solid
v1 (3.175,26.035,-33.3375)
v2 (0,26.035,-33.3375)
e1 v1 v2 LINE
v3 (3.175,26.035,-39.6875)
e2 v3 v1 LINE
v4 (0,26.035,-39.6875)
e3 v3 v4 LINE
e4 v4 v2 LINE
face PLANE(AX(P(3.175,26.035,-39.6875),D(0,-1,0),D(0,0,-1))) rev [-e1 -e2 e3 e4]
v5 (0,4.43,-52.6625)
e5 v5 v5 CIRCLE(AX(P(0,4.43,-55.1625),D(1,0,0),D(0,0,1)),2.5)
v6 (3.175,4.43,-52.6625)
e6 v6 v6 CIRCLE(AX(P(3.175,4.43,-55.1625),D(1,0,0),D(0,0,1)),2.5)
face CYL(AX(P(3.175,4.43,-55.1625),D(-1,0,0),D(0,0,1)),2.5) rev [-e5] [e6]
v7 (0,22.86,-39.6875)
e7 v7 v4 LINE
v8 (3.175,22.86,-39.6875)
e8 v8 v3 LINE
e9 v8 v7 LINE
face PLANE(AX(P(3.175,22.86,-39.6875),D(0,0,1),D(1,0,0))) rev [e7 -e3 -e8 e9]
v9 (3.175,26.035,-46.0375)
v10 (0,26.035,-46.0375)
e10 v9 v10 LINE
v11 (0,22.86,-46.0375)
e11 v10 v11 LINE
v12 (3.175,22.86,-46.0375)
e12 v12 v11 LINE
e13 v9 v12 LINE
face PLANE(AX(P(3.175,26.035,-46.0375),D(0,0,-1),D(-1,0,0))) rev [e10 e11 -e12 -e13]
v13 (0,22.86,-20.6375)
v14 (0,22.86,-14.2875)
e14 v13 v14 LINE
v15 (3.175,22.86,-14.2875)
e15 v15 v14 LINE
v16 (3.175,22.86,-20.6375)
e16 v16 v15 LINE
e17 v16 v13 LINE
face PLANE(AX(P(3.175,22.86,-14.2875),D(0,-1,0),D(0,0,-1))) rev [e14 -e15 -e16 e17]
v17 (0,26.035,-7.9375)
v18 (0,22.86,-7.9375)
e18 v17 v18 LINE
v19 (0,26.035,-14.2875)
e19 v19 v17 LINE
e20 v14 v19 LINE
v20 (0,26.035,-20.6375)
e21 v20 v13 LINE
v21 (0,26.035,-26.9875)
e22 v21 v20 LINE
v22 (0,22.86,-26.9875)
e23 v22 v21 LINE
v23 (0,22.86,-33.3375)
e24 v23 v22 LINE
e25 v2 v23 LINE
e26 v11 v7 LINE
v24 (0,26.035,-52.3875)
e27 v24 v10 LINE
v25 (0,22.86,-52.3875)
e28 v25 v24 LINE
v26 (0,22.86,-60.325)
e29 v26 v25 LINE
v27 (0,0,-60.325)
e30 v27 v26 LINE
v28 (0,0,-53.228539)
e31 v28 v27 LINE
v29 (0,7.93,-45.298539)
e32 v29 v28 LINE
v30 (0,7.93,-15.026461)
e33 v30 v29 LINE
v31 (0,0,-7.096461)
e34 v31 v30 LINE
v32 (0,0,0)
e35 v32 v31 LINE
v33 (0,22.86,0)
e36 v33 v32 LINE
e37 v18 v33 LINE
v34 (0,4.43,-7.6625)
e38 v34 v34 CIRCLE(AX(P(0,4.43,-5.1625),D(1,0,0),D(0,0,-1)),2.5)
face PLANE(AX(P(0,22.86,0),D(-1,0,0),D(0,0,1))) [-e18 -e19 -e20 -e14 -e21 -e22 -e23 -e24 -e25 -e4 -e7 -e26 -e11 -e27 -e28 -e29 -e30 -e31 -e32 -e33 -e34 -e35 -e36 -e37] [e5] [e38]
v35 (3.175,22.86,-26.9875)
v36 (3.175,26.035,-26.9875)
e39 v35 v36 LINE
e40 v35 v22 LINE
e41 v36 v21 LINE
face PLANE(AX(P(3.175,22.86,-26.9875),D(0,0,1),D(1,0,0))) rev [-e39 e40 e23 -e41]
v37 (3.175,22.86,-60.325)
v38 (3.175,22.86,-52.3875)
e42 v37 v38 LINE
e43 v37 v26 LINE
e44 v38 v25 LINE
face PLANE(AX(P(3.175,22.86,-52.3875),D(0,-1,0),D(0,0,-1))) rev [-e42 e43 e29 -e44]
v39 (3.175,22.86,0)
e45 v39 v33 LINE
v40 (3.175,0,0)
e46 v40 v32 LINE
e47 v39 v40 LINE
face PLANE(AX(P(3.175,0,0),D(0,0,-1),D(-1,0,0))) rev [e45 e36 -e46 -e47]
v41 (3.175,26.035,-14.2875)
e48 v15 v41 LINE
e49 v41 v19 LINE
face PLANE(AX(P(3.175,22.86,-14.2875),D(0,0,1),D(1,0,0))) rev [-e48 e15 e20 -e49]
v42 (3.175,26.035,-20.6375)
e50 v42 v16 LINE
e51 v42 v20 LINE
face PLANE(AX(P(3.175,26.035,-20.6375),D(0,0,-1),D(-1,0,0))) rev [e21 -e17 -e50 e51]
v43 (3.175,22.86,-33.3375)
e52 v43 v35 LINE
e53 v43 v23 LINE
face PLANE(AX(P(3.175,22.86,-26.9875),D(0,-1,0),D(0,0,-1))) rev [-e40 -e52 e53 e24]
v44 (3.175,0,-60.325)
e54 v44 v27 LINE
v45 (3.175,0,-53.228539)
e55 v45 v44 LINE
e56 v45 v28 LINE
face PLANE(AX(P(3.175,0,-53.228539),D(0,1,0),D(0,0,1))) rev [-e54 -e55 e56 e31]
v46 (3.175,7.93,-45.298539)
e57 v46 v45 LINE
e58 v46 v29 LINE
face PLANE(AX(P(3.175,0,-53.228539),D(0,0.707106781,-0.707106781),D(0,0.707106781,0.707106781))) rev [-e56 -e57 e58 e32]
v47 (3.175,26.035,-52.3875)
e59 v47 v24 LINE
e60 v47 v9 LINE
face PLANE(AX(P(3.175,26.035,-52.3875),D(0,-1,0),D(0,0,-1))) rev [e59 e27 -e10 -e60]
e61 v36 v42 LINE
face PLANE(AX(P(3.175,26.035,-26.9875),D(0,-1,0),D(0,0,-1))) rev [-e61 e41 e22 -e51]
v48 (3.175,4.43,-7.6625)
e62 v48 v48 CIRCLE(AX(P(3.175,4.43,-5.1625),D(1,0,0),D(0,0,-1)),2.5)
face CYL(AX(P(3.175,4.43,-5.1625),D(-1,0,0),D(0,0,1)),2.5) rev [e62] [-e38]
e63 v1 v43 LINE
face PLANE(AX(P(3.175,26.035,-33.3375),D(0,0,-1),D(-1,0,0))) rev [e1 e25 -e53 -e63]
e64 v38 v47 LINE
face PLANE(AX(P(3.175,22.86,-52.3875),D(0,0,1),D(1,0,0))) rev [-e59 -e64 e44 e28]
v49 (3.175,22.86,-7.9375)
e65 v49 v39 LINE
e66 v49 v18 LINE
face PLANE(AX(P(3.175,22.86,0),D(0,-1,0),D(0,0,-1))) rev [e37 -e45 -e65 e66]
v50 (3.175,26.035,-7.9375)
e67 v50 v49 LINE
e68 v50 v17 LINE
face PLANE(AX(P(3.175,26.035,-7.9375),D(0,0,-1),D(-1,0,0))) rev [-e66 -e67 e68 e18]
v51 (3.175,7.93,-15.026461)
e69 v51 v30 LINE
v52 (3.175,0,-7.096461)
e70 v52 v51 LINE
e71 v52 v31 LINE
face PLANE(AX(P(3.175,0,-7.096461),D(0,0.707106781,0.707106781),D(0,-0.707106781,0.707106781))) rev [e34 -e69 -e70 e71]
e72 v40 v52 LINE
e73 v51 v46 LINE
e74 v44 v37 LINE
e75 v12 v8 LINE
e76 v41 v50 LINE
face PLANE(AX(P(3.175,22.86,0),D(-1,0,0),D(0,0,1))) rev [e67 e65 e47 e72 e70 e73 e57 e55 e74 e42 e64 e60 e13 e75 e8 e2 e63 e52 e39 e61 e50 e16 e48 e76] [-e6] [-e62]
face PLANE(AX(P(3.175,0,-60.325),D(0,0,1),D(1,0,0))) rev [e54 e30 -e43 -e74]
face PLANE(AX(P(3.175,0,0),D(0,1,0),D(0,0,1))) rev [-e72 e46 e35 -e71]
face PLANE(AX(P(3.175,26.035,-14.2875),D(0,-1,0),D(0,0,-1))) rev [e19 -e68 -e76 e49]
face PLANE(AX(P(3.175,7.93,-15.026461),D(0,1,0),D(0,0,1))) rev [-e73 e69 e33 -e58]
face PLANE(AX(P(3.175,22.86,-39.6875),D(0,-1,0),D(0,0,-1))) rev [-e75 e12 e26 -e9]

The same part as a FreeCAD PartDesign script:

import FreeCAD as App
import Part
import Sketcher
from FreeCAD import Vector
Q = App.Units.Quantity


def add_polygon(sketch, points):
    """Adds a closed chain of lines whose ends are joined by coincident constraints."""
    first, n = sketch.GeometryCount, len(points)
    for a, b in zip(points, points[1:] + points[:1]):
        sketch.addGeometry(Part.LineSegment(App.Vector(*a, 0), App.Vector(*b, 0)), False)
    for i in range(n):
        sketch.addConstraint(Sketcher.Constraint("Coincident", first + i, 2, first + (i + 1) % n, 1))

doc = App.newDocument("Part")
body = doc.addObject("PartDesign::Body", "Body")

# Sketch on YZ plane
sketch1 = body.newObject("Sketcher::SketchObject", "Sketch")
sketch1.AttachmentSupport = (doc.getObject("YZ_Plane"), [""])
sketch1.MapMode = "FlatFace"
add_polygon(sketch1, [(0, 0), (0, -7.096461), (7.93, -15.026461), (7.93, -45.298539), (0, -53.228539), (0, -60.325), (22.86, -60.325), (22.86, -52.3875), (26.035, -52.3875), (26.035, -46.0375), (22.86, -46.0375), (22.86, -39.6875), (26.035, -39.6875), (26.035, -33.3375), (22.86, -33.3375), (22.86, -26.9875), (26.035, -26.9875), (26.035, -20.6375), (22.86, -20.6375), (22.86, -14.2875), (26.035, -14.2875), (26.035, -7.9375), (22.86, -7.9375), (22.86, 0)])  # lines 0-23
sketch1.addGeometry(Part.Circle(Vector(4.43, -5.1625, 0), Vector(0, 0, 1), 2.5), False)  # 24
sketch1.addGeometry(Part.Circle(Vector(4.43, -55.1625, 0), Vector(0, 0, 1), 2.5), False)  # 25
sketch1.addConstraint(Sketcher.Constraint("Vertical", 0))
sketch1.addConstraint(Sketcher.Constraint("Vertical", 2))
sketch1.addConstraint(Sketcher.Constraint("Vertical", 4))
sketch1.addConstraint(Sketcher.Constraint("Horizontal", 5))
sketch1.addConstraint(Sketcher.Constraint("Vertical", 6))
sketch1.addConstraint(Sketcher.Constraint("Horizontal", 7))
sketch1.addConstraint(Sketcher.Constraint("Vertical", 8))
sketch1.addConstraint(Sketcher.Constraint("Horizontal", 9))
sketch1.addConstraint(Sketcher.Constraint("Vertical", 10))
sketch1.addConstraint(Sketcher.Constraint("Horizontal", 11))
sketch1.addConstraint(Sketcher.Constraint("Vertical", 12))
sketch1.addConstraint(Sketcher.Constraint("Horizontal", 13))
sketch1.addConstraint(Sketcher.Constraint("Vertical", 14))
sketch1.addConstraint(Sketcher.Constraint("Horizontal", 15))
sketch1.addConstraint(Sketcher.Constraint("Vertical", 16))
sketch1.addConstraint(Sketcher.Constraint("Horizontal", 17))
sketch1.addConstraint(Sketcher.Constraint("Vertical", 18))
sketch1.addConstraint(Sketcher.Constraint("Horizontal", 19))
sketch1.addConstraint(Sketcher.Constraint("Vertical", 20))
sketch1.addConstraint(Sketcher.Constraint("Horizontal", 21))
sketch1.addConstraint(Sketcher.Constraint("Vertical", 22))
sketch1.addConstraint(Sketcher.Constraint("Horizontal", 23))
sketch1.addConstraint(Sketcher.Constraint("Coincident", 23, 2, -1, 1))
sketch1.addConstraint(Sketcher.Constraint("Equal", 24, 25))
sketch1.addConstraint(Sketcher.Constraint("PointOnObject", 3, 2, -2))
sketch1.addConstraint(Sketcher.Constraint("Perpendicular", 1, 3))
sketch1.addConstraint(Sketcher.Constraint("Vertical", 24, 3, 25, 3))
sketch1.addConstraint(Sketcher.Constraint("Vertical", 6, 2, 9, 2))
sketch1.addConstraint(Sketcher.Constraint("Vertical", 8, 2, 11, 2))
sketch1.addConstraint(Sketcher.Constraint("Vertical", 10, 2, 13, 2))
sketch1.addConstraint(Sketcher.Constraint("Vertical", 12, 2, 15, 2))
sketch1.addConstraint(Sketcher.Constraint("Vertical", 14, 2, 17, 2))
sketch1.addConstraint(Sketcher.Constraint("Vertical", 16, 2, 19, 2))
sketch1.addConstraint(Sketcher.Constraint("Vertical", 18, 2, 21, 2))
sketch1.addConstraint(Sketcher.Constraint("Equal", 0, 4))
sketch1.addConstraint(Sketcher.Constraint("Equal", 8, 10))
sketch1.addConstraint(Sketcher.Constraint("Equal", 10, 12))
sketch1.addConstraint(Sketcher.Constraint("Equal", 12, 14))
sketch1.addConstraint(Sketcher.Constraint("Equal", 14, 16))
sketch1.addConstraint(Sketcher.Constraint("Equal", 16, 18))
sketch1.addConstraint(Sketcher.Constraint("Equal", 18, 20))
sketch1.addConstraint(Sketcher.Constraint("Equal", 6, 22))
sketch1.addConstraint(Sketcher.Constraint("Equal", 1, 3))
sketch1.addConstraint(Sketcher.Constraint("DistanceX", 5, 1, 5, 2, Q("0.9 in")))
sketch1.addConstraint(Sketcher.Constraint("DistanceY", 8, 1, 8, 2, Q("0.25 in")))
sketch1.addConstraint(Sketcher.Constraint("Diameter", 24, 5.0))
sketch1.addConstraint(Sketcher.Constraint("DistanceX", 7, 1, 7, 2, Q("0.125 in")))
sketch1.addConstraint(Sketcher.Constraint("DistanceY", 6, 1, 6, 2, Q("0.3125 in")))
sketch1.addConstraint(Sketcher.Constraint("DistanceY", 0, 2, 0, 1, 7.096461))
sketch1.addConstraint(Sketcher.Constraint("DistanceX", -1, 1, 24, 3, 4.43))
sketch1.addConstraint(Sketcher.Constraint("DistanceY", 24, 3, -1, 1, 5.1625))
sketch1.addConstraint(Sketcher.Constraint("DistanceY", 25, 3, -1, 1, 55.1625))
sketch1.addConstraint(Sketcher.Constraint("DistanceX", -1, 1, 1, 2, 7.93))
pad1 = body.newObject("PartDesign::Pad", "Pad")
pad1.Profile = sketch1
pad1.Length = Q("0.125 in")

doc.recompute()
